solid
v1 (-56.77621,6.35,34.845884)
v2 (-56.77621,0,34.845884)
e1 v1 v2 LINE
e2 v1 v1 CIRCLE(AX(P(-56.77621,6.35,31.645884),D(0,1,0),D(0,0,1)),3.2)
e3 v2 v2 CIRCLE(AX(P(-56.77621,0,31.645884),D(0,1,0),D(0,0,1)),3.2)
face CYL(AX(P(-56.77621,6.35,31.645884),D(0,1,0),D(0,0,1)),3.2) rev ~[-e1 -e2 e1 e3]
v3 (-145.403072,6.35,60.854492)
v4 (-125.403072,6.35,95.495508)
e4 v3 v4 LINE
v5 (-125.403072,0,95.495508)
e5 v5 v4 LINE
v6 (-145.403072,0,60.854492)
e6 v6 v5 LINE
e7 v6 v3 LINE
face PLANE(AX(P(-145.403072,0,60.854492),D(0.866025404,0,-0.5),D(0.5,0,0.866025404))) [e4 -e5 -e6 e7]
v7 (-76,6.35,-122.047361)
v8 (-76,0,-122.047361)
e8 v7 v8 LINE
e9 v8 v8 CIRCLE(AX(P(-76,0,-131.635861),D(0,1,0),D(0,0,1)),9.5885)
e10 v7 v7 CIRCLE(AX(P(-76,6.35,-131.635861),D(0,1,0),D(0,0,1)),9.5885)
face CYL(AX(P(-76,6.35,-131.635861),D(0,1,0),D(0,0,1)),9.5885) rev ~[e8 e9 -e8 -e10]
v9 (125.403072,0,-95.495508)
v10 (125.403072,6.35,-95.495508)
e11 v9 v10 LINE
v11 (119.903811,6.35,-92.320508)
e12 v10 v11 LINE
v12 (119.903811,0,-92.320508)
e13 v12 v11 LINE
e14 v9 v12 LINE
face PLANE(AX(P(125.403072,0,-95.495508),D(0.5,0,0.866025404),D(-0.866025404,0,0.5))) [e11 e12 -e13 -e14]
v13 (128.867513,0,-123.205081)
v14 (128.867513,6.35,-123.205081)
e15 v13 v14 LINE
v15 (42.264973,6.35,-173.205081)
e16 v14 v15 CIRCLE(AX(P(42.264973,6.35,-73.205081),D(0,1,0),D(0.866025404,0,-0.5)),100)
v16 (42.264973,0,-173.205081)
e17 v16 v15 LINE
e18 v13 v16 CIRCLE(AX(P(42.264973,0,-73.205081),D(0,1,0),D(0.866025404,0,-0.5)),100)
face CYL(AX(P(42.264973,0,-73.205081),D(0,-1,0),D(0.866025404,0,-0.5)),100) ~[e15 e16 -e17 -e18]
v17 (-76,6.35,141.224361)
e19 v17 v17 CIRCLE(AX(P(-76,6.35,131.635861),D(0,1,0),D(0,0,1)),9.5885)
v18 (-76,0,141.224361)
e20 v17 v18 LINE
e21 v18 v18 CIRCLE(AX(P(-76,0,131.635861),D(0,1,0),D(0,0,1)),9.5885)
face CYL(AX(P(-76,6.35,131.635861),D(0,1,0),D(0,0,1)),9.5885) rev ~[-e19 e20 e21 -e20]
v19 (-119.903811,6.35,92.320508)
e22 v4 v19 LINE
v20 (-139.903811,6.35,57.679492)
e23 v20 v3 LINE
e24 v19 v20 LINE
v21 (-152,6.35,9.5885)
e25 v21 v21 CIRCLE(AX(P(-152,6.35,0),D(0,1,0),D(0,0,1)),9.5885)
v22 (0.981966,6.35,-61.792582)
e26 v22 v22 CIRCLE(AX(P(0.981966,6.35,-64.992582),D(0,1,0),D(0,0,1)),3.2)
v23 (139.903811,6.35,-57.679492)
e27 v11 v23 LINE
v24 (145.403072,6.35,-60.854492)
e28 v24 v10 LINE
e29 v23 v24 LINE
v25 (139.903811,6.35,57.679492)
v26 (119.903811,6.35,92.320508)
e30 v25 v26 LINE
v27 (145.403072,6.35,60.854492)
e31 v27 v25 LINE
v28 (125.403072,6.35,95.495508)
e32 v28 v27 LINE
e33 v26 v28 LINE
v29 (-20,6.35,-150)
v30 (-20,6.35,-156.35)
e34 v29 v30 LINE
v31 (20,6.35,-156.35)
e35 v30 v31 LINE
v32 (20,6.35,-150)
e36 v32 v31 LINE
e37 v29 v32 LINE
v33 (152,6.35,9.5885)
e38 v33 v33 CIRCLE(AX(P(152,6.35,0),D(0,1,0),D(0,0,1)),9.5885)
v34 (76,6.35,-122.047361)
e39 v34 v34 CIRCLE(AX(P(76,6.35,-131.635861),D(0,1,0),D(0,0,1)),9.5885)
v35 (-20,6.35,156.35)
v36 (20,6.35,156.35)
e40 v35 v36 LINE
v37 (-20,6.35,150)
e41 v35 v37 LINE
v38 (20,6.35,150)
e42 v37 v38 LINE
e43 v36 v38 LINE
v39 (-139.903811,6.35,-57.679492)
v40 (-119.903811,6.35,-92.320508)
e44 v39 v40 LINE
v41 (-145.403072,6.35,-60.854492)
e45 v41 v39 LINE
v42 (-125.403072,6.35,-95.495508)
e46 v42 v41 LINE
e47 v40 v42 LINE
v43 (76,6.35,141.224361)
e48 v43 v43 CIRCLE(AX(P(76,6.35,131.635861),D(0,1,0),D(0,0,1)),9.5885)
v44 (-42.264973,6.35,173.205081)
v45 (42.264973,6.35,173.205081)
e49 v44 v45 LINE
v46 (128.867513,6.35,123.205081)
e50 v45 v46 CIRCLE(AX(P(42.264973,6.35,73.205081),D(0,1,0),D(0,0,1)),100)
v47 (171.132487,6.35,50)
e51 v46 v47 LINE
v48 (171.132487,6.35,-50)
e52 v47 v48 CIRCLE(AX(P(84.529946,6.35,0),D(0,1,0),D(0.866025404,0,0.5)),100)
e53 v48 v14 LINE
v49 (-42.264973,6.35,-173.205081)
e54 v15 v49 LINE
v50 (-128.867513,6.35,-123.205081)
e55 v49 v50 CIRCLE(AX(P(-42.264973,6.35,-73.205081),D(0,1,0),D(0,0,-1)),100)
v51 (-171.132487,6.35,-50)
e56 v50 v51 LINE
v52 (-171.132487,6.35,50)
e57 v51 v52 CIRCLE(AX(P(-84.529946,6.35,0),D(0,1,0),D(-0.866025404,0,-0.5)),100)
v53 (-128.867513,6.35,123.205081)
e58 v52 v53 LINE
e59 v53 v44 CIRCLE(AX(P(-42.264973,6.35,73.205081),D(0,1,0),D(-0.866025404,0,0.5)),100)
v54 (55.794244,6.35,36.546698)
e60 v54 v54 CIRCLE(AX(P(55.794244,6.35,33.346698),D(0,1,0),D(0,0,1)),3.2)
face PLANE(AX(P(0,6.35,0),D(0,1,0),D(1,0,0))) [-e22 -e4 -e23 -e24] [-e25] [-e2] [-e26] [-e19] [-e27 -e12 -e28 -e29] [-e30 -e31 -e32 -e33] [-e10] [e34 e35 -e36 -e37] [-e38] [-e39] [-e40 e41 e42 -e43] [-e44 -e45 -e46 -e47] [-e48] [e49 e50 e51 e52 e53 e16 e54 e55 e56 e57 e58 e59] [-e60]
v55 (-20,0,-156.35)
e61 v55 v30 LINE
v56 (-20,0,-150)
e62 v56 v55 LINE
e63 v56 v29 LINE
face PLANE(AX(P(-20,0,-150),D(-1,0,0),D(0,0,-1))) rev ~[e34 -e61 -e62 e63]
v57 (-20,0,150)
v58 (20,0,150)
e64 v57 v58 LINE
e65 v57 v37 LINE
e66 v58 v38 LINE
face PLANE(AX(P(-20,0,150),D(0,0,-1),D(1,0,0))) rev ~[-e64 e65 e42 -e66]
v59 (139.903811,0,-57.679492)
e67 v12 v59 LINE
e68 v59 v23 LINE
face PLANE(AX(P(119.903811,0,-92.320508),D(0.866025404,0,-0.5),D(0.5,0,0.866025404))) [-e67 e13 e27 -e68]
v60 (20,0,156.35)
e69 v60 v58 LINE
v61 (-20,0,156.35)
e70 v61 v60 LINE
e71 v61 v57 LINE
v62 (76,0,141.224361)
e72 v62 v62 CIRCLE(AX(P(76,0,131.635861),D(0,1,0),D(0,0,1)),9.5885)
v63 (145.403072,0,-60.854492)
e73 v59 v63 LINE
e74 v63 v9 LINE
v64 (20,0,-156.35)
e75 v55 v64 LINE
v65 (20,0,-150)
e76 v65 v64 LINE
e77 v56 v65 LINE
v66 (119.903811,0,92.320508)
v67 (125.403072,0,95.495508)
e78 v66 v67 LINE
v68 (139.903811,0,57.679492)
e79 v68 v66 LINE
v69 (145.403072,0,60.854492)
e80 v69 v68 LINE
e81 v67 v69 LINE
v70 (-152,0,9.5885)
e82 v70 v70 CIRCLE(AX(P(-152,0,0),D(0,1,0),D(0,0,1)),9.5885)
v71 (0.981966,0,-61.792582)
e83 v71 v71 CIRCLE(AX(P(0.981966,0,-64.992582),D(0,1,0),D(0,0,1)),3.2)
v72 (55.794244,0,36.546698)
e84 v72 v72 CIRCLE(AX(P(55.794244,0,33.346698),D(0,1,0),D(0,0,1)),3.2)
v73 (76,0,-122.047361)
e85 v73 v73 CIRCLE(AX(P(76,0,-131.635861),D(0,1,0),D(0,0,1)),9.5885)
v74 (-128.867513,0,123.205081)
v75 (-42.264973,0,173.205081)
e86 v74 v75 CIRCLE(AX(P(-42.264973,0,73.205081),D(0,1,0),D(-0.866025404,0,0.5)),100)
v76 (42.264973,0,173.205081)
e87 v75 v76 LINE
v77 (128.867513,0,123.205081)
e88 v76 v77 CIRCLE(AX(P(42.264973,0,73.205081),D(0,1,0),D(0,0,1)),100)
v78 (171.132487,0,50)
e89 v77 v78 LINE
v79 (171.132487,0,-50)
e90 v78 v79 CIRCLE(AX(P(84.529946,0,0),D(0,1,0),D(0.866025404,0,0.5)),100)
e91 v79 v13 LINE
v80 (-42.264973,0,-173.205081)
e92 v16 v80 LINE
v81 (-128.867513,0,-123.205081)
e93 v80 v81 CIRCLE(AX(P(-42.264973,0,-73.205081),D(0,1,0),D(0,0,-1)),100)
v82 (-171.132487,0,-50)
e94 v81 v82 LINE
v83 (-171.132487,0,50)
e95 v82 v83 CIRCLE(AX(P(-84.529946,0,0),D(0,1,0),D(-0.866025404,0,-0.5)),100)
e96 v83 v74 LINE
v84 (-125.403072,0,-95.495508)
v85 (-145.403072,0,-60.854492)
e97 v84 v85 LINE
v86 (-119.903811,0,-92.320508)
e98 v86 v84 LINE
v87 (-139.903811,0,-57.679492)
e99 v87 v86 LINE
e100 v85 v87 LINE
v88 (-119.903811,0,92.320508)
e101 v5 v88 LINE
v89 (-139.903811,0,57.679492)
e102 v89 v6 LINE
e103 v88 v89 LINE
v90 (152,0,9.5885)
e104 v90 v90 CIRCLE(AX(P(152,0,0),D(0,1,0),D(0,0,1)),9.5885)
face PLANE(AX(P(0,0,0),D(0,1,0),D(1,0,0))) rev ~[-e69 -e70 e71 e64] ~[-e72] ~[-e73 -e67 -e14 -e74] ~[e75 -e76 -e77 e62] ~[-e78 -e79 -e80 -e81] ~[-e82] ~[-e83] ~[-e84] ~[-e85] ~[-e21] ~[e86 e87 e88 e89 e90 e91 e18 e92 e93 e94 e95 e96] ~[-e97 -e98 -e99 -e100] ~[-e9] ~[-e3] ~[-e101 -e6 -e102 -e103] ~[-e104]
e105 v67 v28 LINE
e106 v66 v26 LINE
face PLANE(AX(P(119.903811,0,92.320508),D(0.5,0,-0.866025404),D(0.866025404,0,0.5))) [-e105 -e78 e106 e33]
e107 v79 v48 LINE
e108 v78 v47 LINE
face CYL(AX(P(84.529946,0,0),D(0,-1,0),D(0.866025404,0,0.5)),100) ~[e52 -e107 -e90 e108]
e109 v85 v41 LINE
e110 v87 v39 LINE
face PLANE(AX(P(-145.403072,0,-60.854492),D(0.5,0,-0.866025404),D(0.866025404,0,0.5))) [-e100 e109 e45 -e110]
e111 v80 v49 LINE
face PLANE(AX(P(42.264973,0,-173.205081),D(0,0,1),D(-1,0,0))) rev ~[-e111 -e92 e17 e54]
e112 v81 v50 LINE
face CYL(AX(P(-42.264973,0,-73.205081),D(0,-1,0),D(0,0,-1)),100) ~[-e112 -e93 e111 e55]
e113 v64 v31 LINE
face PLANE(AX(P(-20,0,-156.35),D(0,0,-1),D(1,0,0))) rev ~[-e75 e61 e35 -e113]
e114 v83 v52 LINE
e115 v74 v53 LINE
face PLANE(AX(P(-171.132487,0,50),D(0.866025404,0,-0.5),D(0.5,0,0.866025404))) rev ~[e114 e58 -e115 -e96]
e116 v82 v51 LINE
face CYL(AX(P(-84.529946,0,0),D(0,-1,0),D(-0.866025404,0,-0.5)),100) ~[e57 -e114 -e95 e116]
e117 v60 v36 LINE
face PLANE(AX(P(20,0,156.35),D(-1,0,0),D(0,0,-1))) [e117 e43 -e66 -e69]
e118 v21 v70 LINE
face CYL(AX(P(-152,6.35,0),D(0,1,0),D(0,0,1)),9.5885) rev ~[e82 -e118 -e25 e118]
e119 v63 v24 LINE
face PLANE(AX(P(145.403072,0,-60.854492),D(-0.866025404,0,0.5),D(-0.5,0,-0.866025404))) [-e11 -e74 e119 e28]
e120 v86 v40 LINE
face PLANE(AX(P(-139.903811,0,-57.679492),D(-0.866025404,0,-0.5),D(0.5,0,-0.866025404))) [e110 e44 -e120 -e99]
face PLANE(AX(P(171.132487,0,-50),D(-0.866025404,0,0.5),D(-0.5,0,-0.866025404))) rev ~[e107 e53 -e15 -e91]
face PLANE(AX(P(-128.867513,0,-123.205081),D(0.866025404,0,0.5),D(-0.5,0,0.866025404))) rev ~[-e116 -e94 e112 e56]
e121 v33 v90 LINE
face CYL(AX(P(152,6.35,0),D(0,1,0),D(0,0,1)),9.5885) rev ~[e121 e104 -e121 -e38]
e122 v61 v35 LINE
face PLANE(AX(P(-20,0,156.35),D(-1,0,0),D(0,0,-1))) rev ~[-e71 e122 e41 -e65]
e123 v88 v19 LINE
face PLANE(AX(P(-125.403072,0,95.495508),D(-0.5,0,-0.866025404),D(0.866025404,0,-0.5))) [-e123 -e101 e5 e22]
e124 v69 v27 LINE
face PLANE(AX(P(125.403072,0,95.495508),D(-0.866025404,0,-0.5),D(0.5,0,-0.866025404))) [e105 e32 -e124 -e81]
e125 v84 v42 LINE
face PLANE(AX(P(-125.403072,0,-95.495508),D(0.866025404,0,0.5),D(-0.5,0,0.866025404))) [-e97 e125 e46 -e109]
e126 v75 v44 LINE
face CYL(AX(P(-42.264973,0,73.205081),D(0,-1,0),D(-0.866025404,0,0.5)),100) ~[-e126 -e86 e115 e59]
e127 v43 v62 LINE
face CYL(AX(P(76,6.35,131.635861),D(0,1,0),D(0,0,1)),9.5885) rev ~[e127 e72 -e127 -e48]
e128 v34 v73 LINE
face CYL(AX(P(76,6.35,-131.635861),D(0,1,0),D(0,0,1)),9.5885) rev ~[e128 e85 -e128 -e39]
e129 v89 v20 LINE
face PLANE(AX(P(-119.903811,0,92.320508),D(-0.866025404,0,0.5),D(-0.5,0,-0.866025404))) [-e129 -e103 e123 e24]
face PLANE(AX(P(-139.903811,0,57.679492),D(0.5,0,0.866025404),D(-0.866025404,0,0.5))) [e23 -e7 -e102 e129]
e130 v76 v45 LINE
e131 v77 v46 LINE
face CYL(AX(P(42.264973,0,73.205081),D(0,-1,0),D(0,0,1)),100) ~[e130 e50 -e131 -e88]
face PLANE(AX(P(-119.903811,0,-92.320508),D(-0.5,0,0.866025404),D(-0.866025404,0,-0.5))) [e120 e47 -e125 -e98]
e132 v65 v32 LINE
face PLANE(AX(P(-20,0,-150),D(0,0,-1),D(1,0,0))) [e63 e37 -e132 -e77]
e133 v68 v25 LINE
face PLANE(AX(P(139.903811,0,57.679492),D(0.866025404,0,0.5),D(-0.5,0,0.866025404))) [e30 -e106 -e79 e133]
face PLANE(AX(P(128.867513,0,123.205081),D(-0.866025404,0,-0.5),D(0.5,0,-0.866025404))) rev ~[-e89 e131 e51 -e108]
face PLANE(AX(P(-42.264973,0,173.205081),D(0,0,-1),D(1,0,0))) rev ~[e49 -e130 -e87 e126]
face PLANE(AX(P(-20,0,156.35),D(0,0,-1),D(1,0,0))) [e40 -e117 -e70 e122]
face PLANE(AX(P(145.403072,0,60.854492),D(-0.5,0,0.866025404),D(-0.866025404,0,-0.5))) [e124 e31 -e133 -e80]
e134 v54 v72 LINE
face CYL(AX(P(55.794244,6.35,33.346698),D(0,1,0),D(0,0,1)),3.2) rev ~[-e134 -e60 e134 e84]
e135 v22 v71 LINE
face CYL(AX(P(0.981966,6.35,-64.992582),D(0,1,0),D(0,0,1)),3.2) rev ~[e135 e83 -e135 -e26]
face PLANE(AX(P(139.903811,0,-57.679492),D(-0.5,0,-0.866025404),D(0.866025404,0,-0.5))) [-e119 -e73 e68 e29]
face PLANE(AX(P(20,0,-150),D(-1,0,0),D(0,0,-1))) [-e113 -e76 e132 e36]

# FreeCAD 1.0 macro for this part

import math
import FreeCAD as App
import Part
import Sketcher
Q = App.Units.Quantity


def add_polygon(sketch, points):
    """Adds a closed chain of lines whose ends are joined by coincident constraints."""
    first, n = sketch.GeometryCount, len(points)
    for a, b in zip(points, points[1:] + points[:1]):
        sketch.addGeometry(Part.LineSegment(App.Vector(*a, 0), App.Vector(*b, 0)), False)
    for i in range(n):
        sketch.addConstraint(Sketcher.Constraint("Coincident", first + i, 2, first + (i + 1) % n, 1))

doc = App.newDocument("Part")
body = doc.addObject("PartDesign::Body", "Body")

# Sketch on XZ plane
sketch1 = doc.addObject("Sketcher::SketchObject", "Sketch")
body.addObject(sketch1)
sketch1.AttachmentSupport = (doc.XZ_Plane, [""])
sketch1.MapMode = "FlatFace"
sketch1.addGeometry(Part.LineSegment(App.Vector(171, -50, 0), App.Vector(129, -123, 0)), False)  # 0
sketch1.addGeometry(Part.ArcOfCircle(Part.Circle(App.Vector(42, -73, 0), App.Vector(0, 0, 1), 100), math.radians(-90), math.radians(-30)), False)  # 1
sketch1.addGeometry(Part.LineSegment(App.Vector(42, -173, 0), App.Vector(-42, -173, 0)), False)  # 2
sketch1.addGeometry(Part.ArcOfCircle(Part.Circle(App.Vector(-42, -73, 0), App.Vector(0, 0, 1), 100), math.radians(-150), math.radians(-90)), False)  # 3
sketch1.addGeometry(Part.LineSegment(App.Vector(-129, -123, 0), App.Vector(-171, -50, 0)), False)  # 4
sketch1.addGeometry(Part.ArcOfCircle(Part.Circle(App.Vector(-85, 0, 0), App.Vector(0, 0, 1), 100), math.radians(150), math.radians(210)), False)  # 5
sketch1.addGeometry(Part.LineSegment(App.Vector(-171, 50, 0), App.Vector(-129, 123, 0)), False)  # 6
sketch1.addGeometry(Part.ArcOfCircle(Part.Circle(App.Vector(-42, 73, 0), App.Vector(0, 0, 1), 100), math.radians(90), math.radians(150)), False)  # 7
sketch1.addGeometry(Part.LineSegment(App.Vector(-42, 173, 0), App.Vector(42, 173, 0)), False)  # 8
sketch1.addGeometry(Part.ArcOfCircle(Part.Circle(App.Vector(42, 73, 0), App.Vector(0, 0, 1), 100), math.radians(30), math.radians(90)), False)  # 9
sketch1.addGeometry(Part.LineSegment(App.Vector(129, 123, 0), App.Vector(171, 50, 0)), False)  # 10
sketch1.addGeometry(Part.ArcOfCircle(Part.Circle(App.Vector(85, 0, 0), App.Vector(0, 0, 1), 100), math.radians(-30), math.radians(30)), False)  # 11
add_polygon(sketch1, [(-145, 61), (-140, 58), (-120, 92), (-125, 95)])  # lines 12-15
add_polygon(sketch1, [(20, 156), (-20, 156), (-20, 150), (20, 150)])  # lines 16-19
add_polygon(sketch1, [(125, 95), (120, 92), (140, 58), (145, 61)])  # lines 20-23
add_polygon(sketch1, [(-125, -95), (-120, -92), (-140, -58), (-145, -61)])  # lines 24-27
add_polygon(sketch1, [(145, -61), (140, -58), (120, -92), (125, -95)])  # lines 28-31
add_polygon(sketch1, [(20, -150), (-20, -150), (-20, -156), (20, -156)])  # lines 32-35
sketch1.addConstraint(Sketcher.Constraint("Tangent", 0, 2, 1, 2))
sketch1.addConstraint(Sketcher.Constraint("Tangent", 1, 1, 2, 1))
sketch1.addConstraint(Sketcher.Constraint("Tangent", 2, 2, 3, 2))
sketch1.addConstraint(Sketcher.Constraint("Tangent", 3, 1, 4, 1))
sketch1.addConstraint(Sketcher.Constraint("Tangent", 4, 2, 5, 2))
sketch1.addConstraint(Sketcher.Constraint("Tangent", 5, 1, 6, 1))
sketch1.addConstraint(Sketcher.Constraint("Tangent", 6, 2, 7, 2))
sketch1.addConstraint(Sketcher.Constraint("Tangent", 7, 1, 8, 1))
sketch1.addConstraint(Sketcher.Constraint("Tangent", 8, 2, 9, 2))
sketch1.addConstraint(Sketcher.Constraint("Tangent", 9, 1, 10, 1))
sketch1.addConstraint(Sketcher.Constraint("Tangent", 10, 2, 11, 2))
sketch1.addConstraint(Sketcher.Constraint("Tangent", 11, 1, 0, 1))
sketch1.addConstraint(Sketcher.Constraint("Horizontal", 2))
sketch1.addConstraint(Sketcher.Constraint("Horizontal", 8))
sketch1.addConstraint(Sketcher.Constraint("Horizontal", 16))
sketch1.addConstraint(Sketcher.Constraint("Vertical", 17))
sketch1.addConstraint(Sketcher.Constraint("Horizontal", 18))
sketch1.addConstraint(Sketcher.Constraint("Vertical", 19))
sketch1.addConstraint(Sketcher.Constraint("Horizontal", 32))
sketch1.addConstraint(Sketcher.Constraint("Vertical", 33))
sketch1.addConstraint(Sketcher.Constraint("Horizontal", 34))
sketch1.addConstraint(Sketcher.Constraint("Vertical", 35))
sketch1.addConstraint(Sketcher.Constraint("Equal", 1, 3))
sketch1.addConstraint(Sketcher.Constraint("Equal", 3, 5))
sketch1.addConstraint(Sketcher.Constraint("Equal", 5, 7))
sketch1.addConstraint(Sketcher.Constraint("Equal", 7, 9))
sketch1.addConstraint(Sketcher.Constraint("Equal", 9, 11))
sketch1.addConstraint(Sketcher.Constraint("Symmetric", 1, 3, 7, 3, -1, 1))
sketch1.addConstraint(Sketcher.Constraint("Symmetric", 5, 3, 11, 3, -1, 1))
sketch1.addConstraint(Sketcher.Constraint("Symmetric", 20, 2, 24, 2, -1, 1))
sketch1.addConstraint(Sketcher.Constraint("Symmetric", 21, 2, 25, 2, -1, 1))
sketch1.addConstraint(Sketcher.Constraint("Symmetric", 22, 2, 26, 2, -1, 1))
sketch1.addConstraint(Sketcher.Constraint("Symmetric", 23, 2, 27, 2, -1, 1))
sketch1.addConstraint(Sketcher.Constraint("Symmetric", 12, 2, 28, 2, -1, 1))
sketch1.addConstraint(Sketcher.Constraint("Symmetric", 13, 2, 29, 2, -1, 1))
sketch1.addConstraint(Sketcher.Constraint("Symmetric", 14, 2, 30, 2, -1, 1))
sketch1.addConstraint(Sketcher.Constraint("Symmetric", 15, 2, 31, 2, -1, 1))
sketch1.addConstraint(Sketcher.Constraint("Symmetric", 18, 2, 32, 2, -1, 1))
sketch1.addConstraint(Sketcher.Constraint("Symmetric", 16, 2, 34, 2, -1, 1))
sketch1.addConstraint(Sketcher.Constraint("Symmetric", 0, 2, 3, 1, -2))
sketch1.addConstraint(Sketcher.Constraint("Symmetric", 13, 2, 20, 2, -2))
sketch1.addConstraint(Sketcher.Constraint("Symmetric", 12, 2, 21, 2, -2))
sketch1.addConstraint(Sketcher.Constraint("Symmetric", 15, 2, 22, 2, -2))
sketch1.addConstraint(Sketcher.Constraint("Symmetric", 14, 2, 23, 2, -2))
sketch1.addConstraint(Sketcher.Constraint("Parallel", 4, 10))
sketch1.addConstraint(Sketcher.Constraint("Perpendicular", 6, 12))
sketch1.addConstraint(Sketcher.Constraint("Perpendicular", 12, 13))
sketch1.addConstraint(Sketcher.Constraint("Perpendicular", 13, 14))
sketch1.addConstraint(Sketcher.Constraint("Perpendicular", 14, 15))
sketch1.addConstraint(Sketcher.Constraint("Vertical", 17, 2, 32, 2))
sketch1.addConstraint(Sketcher.Constraint("Radius", 1, 100.0))
sketch1.addConstraint(Sketcher.Constraint("DistanceX", 16, 2, 16, 1, 40.0))
sketch1.addConstraint(Sketcher.Constraint("Angle", 0, Q("-120 deg")))
sketch1.addConstraint(Sketcher.Constraint("Distance", 13, 40.0))
sketch1.addConstraint(Sketcher.Constraint("DistanceY", -1, 1, 17, 2, 150.0))
sketch1.addConstraint(Sketcher.Constraint("DistanceY", 17, 2, 17, 1, 6.35))
sketch1.addConstraint(Sketcher.Constraint("Distance", 12, 6.35))
sketch1.addConstraint(Sketcher.Constraint("DistanceX", 14, 2, 7, 3, 83.138099))
sketch1.addConstraint(Sketcher.Constraint("DistanceX", 2, 2, 2, 1, 84.529946))
sketch1.addConstraint(Sketcher.Constraint("DistanceY", 1, 3, -1, 1, 73.205081))
sketch1.addConstraint(Sketcher.Constraint("DistanceY", -1, 1, 12, 2, 57.679492))
pad1 = doc.addObject("PartDesign::Pad", "Pad")
body.addObject(pad1)
pad1.Profile = sketch1
pad1.Length = 6.35
pad1.Reversed = True

# Sketch on XZ plane
sketch2 = doc.addObject("Sketcher::SketchObject", "Sketch001")
body.addObject(sketch2)
sketch2.AttachmentSupport = (doc.XZ_Plane, [""])
sketch2.MapMode = "FlatFace"
sketch2.AttachmentOffset = App.Placement(App.Vector(0, 0, -6.35), App.Rotation())
sketch2.addGeometry(Part.Circle(App.Vector(55.8, 33.3, 0), App.Vector(0, 0, 1), 3.2), False)
sketch2.addGeometry(Part.Circle(App.Vector(-56.8, 31.6, 0), App.Vector(0, 0, 1), 3.2), False)
sketch2.addGeometry(Part.Circle(App.Vector(1, -65, 0), App.Vector(0, 0, 1), 3.2), False)
sketch2.addConstraint(Sketcher.Constraint("Equal", 0, 1))
sketch2.addConstraint(Sketcher.Constraint("Equal", 1, 2))
sketch2.addConstraint(Sketcher.Constraint("Diameter", 0, 6.4))
sketch2.addConstraint(Sketcher.Constraint("DistanceY", -1, 1, 0, 3, 33.346698))
sketch2.addConstraint(Sketcher.Constraint("DistanceX", 1, 3, -1, 1, 56.77621))
sketch2.addConstraint(Sketcher.Constraint("DistanceX", 2, 3, 0, 3, 54.812279))
sketch2.addConstraint(Sketcher.Constraint("DistanceY", 2, 3, 0, 3, 98.33928))
sketch2.addConstraint(Sketcher.Constraint("DistanceX", -1, 1, 0, 3, 55.794244))
sketch2.addConstraint(Sketcher.Constraint("DistanceY", -1, 1, 1, 3, 31.645884))
pocket1 = doc.addObject("PartDesign::Pocket", "Pocket")
body.addObject(pocket1)
pocket1.Profile = sketch2
pocket1.Length = 6.35
pocket1.Reversed = True

# Sketch on XZ plane
sketch3 = doc.addObject("Sketcher::SketchObject", "Sketch002")
body.addObject(sketch3)
sketch3.AttachmentSupport = (doc.XZ_Plane, [""])
sketch3.MapMode = "FlatFace"
sketch3.AttachmentOffset = App.Placement(App.Vector(0, 0, -6.35), App.Rotation())
sketch3.addGeometry(Part.Circle(App.Vector(76, -132, 0), App.Vector(0, 0, 1), 10), False)
sketch3.addGeometry(Part.Circle(App.Vector(152, 0, 0), App.Vector(0, 0, 1), 10), False)
sketch3.addGeometry(Part.Circle(App.Vector(76, 132, 0), App.Vector(0, 0, 1), 10), False)
sketch3.addGeometry(Part.Circle(App.Vector(-76, 132, 0), App.Vector(0, 0, 1), 10), False)
sketch3.addGeometry(Part.Circle(App.Vector(-152, 0, 0), App.Vector(0, 0, 1), 10), False)
sketch3.addGeometry(Part.Circle(App.Vector(-76, -132, 0), App.Vector(0, 0, 1), 10), False)
sketch3.addConstraint(Sketcher.Constraint("Equal", 0, 1))
sketch3.addConstraint(Sketcher.Constraint("Equal", 1, 2))
sketch3.addConstraint(Sketcher.Constraint("Equal", 2, 3))
sketch3.addConstraint(Sketcher.Constraint("Equal", 3, 4))
sketch3.addConstraint(Sketcher.Constraint("Equal", 4, 5))
sketch3.addConstraint(Sketcher.Constraint("Symmetric", 0, 3, 3, 3, -1, 1))
sketch3.addConstraint(Sketcher.Constraint("Symmetric", 1, 3, 4, 3, -1, 1))
sketch3.addConstraint(Sketcher.Constraint("Symmetric", 2, 3, 5, 3, -1, 1))
sketch3.addConstraint(Sketcher.Constraint("Symmetric", 2, 3, 3, 3, -2))
sketch3.addConstraint(Sketcher.Constraint("PointOnObject", 1, 3, -1))
sketch3.addConstraint(Sketcher.Constraint("Diameter", 0, 19.177))
sketch3.addConstraint(Sketcher.Constraint("DistanceX", -1, 1, 0, 3, 76.0))
sketch3.addConstraint(Sketcher.Constraint("DistanceX", -1, 1, 1, 3, 152.0))
sketch3.addConstraint(Sketcher.Constraint("DistanceY", 0, 3, -1, 1, 131.635861))
pocket2 = doc.addObject("PartDesign::Pocket", "Pocket001")
body.addObject(pocket2)
pocket2.Profile = sketch3
pocket2.Type = "ThroughAll"
pocket2.Reversed = True

doc.recompute()
